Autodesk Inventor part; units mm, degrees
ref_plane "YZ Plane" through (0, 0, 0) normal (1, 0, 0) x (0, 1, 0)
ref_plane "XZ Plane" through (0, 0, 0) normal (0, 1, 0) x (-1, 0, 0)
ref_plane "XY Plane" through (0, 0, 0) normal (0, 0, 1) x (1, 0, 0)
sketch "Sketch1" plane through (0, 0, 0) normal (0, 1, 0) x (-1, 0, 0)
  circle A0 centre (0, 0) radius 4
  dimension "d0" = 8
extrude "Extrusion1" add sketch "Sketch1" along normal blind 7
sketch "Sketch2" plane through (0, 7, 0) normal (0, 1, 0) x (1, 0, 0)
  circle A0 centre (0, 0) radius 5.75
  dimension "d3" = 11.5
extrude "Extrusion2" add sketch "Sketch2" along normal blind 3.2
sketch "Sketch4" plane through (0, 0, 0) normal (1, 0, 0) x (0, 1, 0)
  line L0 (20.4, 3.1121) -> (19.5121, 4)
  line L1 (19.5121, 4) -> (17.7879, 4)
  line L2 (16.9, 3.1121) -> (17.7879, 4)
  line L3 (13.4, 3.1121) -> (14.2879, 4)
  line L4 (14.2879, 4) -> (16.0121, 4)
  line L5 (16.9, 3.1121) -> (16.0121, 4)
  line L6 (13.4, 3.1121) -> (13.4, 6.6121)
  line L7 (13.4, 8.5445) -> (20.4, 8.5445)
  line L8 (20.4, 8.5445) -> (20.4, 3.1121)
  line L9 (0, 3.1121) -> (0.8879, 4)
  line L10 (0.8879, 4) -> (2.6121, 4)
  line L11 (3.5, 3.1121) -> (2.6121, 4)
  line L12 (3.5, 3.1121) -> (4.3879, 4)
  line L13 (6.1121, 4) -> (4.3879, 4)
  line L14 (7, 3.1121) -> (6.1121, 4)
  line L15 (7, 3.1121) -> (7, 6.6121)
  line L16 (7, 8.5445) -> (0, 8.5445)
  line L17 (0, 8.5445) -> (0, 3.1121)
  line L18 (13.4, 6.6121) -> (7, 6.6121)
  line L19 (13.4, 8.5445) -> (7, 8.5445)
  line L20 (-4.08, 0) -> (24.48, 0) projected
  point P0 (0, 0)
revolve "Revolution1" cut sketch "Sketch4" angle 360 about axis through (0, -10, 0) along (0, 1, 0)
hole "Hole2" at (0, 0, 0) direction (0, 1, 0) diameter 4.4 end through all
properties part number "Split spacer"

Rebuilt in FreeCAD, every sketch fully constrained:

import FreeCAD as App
import Part
import Sketcher


def add_polygon(sketch, points):
    """Adds a closed chain of lines whose ends are joined by coincident constraints."""
    first, n = sketch.GeometryCount, len(points)
    for a, b in zip(points, points[1:] + points[:1]):
        sketch.addGeometry(Part.LineSegment(App.Vector(*a, 0), App.Vector(*b, 0)), False)
    for i in range(n):
        sketch.addConstraint(Sketcher.Constraint("Coincident", first + i, 2, first + (i + 1) % n, 1))

doc = App.newDocument("Part")
body = doc.addObject("PartDesign::Body", "Body")

sketch1 = body.newObject("Sketcher::SketchObject", "Sketch")
sketch1.AttachmentSupport = (doc.getObject("XZ_Plane"), [""])
sketch1.MapMode = "FlatFace"
sketch1.addGeometry(Part.Circle(App.Vector(0, 0, 0), App.Vector(0, 0, 1), 4), False)
sketch1.addConstraint(Sketcher.Constraint("Coincident", 0, 3, -1, 1))
sketch1.addConstraint(Sketcher.Constraint("Diameter", 0, 8.0))
pad1 = body.newObject("PartDesign::Pad", "Pad")
pad1.Profile = sketch1
pad1.Length = 7
pad1.Reversed = True

sketch2 = body.newObject("Sketcher::SketchObject", "Sketch001")
sketch2.AttachmentSupport = (doc.getObject("XZ_Plane"), [""])
sketch2.MapMode = "FlatFace"
sketch2.AttachmentOffset = App.Placement(App.Vector(0, 0, -7), App.Rotation())
sketch2.addGeometry(Part.Circle(App.Vector(0, 0, 0), App.Vector(0, 0, 1), 5.75), False)
sketch2.addConstraint(Sketcher.Constraint("Coincident", 0, 3, -1, 1))
sketch2.addConstraint(Sketcher.Constraint("Diameter", 0, 11.5))
pad2 = body.newObject("PartDesign::Pad", "Pad001")
pad2.Profile = sketch2
pad2.Length = 3.2
pad2.Reversed = True

sketch3 = body.newObject("Sketcher::SketchObject", "Sketch002")
sketch3.AttachmentSupport = (doc.getObject("YZ_Plane"), [""])
sketch3.MapMode = "FlatFace"
add_polygon(sketch3, [(19.5121, 4), (20.4, 3.1121), (20.4, 8.5445), (0, 8.5445), (0, 3.1121), (0.8879, 4), (2.6121, 4), (3.5, 3.1121), (4.3879, 4), (6.1121, 4), (7, 3.1121), (7, 6.6121), (13.4, 6.6121), (13.4, 3.1121), (14.2879, 4), (16.0121, 4), (16.9, 3.1121), (17.7879, 4)])
sketch3.addConstraint(Sketcher.Constraint("Vertical", 1))
sketch3.addConstraint(Sketcher.Constraint("Horizontal", 2))
sketch3.addConstraint(Sketcher.Constraint("Vertical", 3))
sketch3.addConstraint(Sketcher.Constraint("Horizontal", 5))
sketch3.addConstraint(Sketcher.Constraint("Horizontal", 8))
sketch3.addConstraint(Sketcher.Constraint("Vertical", 10))
sketch3.addConstraint(Sketcher.Constraint("Horizontal", 11))
sketch3.addConstraint(Sketcher.Constraint("Vertical", 12))
sketch3.addConstraint(Sketcher.Constraint("Horizontal", 14))
sketch3.addConstraint(Sketcher.Constraint("Horizontal", 17))
sketch3.addConstraint(Sketcher.Constraint("PointOnObject", 2, 2, -2))
sketch3.addConstraint(Sketcher.Constraint("Perpendicular", 0, 4))
sketch3.addConstraint(Sketcher.Constraint("Perpendicular", 4, 6))
sketch3.addConstraint(Sketcher.Constraint("Perpendicular", 6, 7))
sketch3.addConstraint(Sketcher.Constraint("Perpendicular", 7, 9))
sketch3.addConstraint(Sketcher.Constraint("Perpendicular", 9, 13))
sketch3.addConstraint(Sketcher.Constraint("Perpendicular", 13, 15))
sketch3.addConstraint(Sketcher.Constraint("Perpendicular", 15, 16))
sketch3.addConstraint(Sketcher.Constraint("Horizontal", 0, 2, 3, 2))
sketch3.addConstraint(Sketcher.Constraint("Horizontal", 3, 2, 6, 2))
sketch3.addConstraint(Sketcher.Constraint("Horizontal", 5, 2, 7, 2))
sketch3.addConstraint(Sketcher.Constraint("Horizontal", 6, 2, 9, 2))
sketch3.addConstraint(Sketcher.Constraint("Horizontal", 9, 2, 12, 2))
sketch3.addConstraint(Sketcher.Constraint("Horizontal", 8, 2, 13, 2))
sketch3.addConstraint(Sketcher.Constraint("Horizontal", 12, 2, 15, 2))
sketch3.addConstraint(Sketcher.Constraint("Horizontal", 14, 2, 16, 2))
sketch3.addConstraint(Sketcher.Constraint("Equal", 5, 8))
sketch3.addConstraint(Sketcher.Constraint("Equal", 8, 14))
sketch3.addConstraint(Sketcher.Constraint("Equal", 14, 17))
sketch3.addConstraint(Sketcher.Constraint("Equal", 0, 4))
sketch3.addConstraint(Sketcher.Constraint("DistanceX", 2, 2, 2, 1, 20.4))
sketch3.addConstraint(Sketcher.Constraint("DistanceX", 11, 1, 11, 2, 6.4))
sketch3.addConstraint(Sketcher.Constraint("DistanceY", 10, 1, 10, 2, 3.5))
sketch3.addConstraint(Sketcher.Constraint("DistanceY", -1, 1, 4, 2, 4.0))
sketch3.addConstraint(Sketcher.Constraint("DistanceX", 5, 1, 5, 2, 1.7242))
sketch3.addConstraint(Sketcher.Constraint("DistanceY", 1, 1, 1, 2, 5.4324))
groove = body.newObject("PartDesign::Groove", "Groove")
groove.Profile = sketch3
groove.ReferenceAxis = (sketch3, ["H_Axis"])
groove.Angle = 360

sketch4 = body.newObject("Sketcher::SketchObject", "Sketch003")
sketch4.AttachmentSupport = (doc.getObject("XZ_Plane"), [""])
sketch4.MapMode = "FlatFace"
sketch4.addGeometry(Part.Circle(App.Vector(0, 0, 0), App.Vector(0, 0, 1), 2.2), False)
sketch4.addConstraint(Sketcher.Constraint("Coincident", 0, 3, -1, 1))
sketch4.addConstraint(Sketcher.Constraint("Diameter", 0, 4.4))
doc.recompute()
hole = body.newObject("PartDesign::Hole", "Hole")
hole.Profile = sketch4
hole.ThreadType = "None"
hole.Diameter = 4.4
hole.DepthType = "ThroughAll"

doc.recompute()
